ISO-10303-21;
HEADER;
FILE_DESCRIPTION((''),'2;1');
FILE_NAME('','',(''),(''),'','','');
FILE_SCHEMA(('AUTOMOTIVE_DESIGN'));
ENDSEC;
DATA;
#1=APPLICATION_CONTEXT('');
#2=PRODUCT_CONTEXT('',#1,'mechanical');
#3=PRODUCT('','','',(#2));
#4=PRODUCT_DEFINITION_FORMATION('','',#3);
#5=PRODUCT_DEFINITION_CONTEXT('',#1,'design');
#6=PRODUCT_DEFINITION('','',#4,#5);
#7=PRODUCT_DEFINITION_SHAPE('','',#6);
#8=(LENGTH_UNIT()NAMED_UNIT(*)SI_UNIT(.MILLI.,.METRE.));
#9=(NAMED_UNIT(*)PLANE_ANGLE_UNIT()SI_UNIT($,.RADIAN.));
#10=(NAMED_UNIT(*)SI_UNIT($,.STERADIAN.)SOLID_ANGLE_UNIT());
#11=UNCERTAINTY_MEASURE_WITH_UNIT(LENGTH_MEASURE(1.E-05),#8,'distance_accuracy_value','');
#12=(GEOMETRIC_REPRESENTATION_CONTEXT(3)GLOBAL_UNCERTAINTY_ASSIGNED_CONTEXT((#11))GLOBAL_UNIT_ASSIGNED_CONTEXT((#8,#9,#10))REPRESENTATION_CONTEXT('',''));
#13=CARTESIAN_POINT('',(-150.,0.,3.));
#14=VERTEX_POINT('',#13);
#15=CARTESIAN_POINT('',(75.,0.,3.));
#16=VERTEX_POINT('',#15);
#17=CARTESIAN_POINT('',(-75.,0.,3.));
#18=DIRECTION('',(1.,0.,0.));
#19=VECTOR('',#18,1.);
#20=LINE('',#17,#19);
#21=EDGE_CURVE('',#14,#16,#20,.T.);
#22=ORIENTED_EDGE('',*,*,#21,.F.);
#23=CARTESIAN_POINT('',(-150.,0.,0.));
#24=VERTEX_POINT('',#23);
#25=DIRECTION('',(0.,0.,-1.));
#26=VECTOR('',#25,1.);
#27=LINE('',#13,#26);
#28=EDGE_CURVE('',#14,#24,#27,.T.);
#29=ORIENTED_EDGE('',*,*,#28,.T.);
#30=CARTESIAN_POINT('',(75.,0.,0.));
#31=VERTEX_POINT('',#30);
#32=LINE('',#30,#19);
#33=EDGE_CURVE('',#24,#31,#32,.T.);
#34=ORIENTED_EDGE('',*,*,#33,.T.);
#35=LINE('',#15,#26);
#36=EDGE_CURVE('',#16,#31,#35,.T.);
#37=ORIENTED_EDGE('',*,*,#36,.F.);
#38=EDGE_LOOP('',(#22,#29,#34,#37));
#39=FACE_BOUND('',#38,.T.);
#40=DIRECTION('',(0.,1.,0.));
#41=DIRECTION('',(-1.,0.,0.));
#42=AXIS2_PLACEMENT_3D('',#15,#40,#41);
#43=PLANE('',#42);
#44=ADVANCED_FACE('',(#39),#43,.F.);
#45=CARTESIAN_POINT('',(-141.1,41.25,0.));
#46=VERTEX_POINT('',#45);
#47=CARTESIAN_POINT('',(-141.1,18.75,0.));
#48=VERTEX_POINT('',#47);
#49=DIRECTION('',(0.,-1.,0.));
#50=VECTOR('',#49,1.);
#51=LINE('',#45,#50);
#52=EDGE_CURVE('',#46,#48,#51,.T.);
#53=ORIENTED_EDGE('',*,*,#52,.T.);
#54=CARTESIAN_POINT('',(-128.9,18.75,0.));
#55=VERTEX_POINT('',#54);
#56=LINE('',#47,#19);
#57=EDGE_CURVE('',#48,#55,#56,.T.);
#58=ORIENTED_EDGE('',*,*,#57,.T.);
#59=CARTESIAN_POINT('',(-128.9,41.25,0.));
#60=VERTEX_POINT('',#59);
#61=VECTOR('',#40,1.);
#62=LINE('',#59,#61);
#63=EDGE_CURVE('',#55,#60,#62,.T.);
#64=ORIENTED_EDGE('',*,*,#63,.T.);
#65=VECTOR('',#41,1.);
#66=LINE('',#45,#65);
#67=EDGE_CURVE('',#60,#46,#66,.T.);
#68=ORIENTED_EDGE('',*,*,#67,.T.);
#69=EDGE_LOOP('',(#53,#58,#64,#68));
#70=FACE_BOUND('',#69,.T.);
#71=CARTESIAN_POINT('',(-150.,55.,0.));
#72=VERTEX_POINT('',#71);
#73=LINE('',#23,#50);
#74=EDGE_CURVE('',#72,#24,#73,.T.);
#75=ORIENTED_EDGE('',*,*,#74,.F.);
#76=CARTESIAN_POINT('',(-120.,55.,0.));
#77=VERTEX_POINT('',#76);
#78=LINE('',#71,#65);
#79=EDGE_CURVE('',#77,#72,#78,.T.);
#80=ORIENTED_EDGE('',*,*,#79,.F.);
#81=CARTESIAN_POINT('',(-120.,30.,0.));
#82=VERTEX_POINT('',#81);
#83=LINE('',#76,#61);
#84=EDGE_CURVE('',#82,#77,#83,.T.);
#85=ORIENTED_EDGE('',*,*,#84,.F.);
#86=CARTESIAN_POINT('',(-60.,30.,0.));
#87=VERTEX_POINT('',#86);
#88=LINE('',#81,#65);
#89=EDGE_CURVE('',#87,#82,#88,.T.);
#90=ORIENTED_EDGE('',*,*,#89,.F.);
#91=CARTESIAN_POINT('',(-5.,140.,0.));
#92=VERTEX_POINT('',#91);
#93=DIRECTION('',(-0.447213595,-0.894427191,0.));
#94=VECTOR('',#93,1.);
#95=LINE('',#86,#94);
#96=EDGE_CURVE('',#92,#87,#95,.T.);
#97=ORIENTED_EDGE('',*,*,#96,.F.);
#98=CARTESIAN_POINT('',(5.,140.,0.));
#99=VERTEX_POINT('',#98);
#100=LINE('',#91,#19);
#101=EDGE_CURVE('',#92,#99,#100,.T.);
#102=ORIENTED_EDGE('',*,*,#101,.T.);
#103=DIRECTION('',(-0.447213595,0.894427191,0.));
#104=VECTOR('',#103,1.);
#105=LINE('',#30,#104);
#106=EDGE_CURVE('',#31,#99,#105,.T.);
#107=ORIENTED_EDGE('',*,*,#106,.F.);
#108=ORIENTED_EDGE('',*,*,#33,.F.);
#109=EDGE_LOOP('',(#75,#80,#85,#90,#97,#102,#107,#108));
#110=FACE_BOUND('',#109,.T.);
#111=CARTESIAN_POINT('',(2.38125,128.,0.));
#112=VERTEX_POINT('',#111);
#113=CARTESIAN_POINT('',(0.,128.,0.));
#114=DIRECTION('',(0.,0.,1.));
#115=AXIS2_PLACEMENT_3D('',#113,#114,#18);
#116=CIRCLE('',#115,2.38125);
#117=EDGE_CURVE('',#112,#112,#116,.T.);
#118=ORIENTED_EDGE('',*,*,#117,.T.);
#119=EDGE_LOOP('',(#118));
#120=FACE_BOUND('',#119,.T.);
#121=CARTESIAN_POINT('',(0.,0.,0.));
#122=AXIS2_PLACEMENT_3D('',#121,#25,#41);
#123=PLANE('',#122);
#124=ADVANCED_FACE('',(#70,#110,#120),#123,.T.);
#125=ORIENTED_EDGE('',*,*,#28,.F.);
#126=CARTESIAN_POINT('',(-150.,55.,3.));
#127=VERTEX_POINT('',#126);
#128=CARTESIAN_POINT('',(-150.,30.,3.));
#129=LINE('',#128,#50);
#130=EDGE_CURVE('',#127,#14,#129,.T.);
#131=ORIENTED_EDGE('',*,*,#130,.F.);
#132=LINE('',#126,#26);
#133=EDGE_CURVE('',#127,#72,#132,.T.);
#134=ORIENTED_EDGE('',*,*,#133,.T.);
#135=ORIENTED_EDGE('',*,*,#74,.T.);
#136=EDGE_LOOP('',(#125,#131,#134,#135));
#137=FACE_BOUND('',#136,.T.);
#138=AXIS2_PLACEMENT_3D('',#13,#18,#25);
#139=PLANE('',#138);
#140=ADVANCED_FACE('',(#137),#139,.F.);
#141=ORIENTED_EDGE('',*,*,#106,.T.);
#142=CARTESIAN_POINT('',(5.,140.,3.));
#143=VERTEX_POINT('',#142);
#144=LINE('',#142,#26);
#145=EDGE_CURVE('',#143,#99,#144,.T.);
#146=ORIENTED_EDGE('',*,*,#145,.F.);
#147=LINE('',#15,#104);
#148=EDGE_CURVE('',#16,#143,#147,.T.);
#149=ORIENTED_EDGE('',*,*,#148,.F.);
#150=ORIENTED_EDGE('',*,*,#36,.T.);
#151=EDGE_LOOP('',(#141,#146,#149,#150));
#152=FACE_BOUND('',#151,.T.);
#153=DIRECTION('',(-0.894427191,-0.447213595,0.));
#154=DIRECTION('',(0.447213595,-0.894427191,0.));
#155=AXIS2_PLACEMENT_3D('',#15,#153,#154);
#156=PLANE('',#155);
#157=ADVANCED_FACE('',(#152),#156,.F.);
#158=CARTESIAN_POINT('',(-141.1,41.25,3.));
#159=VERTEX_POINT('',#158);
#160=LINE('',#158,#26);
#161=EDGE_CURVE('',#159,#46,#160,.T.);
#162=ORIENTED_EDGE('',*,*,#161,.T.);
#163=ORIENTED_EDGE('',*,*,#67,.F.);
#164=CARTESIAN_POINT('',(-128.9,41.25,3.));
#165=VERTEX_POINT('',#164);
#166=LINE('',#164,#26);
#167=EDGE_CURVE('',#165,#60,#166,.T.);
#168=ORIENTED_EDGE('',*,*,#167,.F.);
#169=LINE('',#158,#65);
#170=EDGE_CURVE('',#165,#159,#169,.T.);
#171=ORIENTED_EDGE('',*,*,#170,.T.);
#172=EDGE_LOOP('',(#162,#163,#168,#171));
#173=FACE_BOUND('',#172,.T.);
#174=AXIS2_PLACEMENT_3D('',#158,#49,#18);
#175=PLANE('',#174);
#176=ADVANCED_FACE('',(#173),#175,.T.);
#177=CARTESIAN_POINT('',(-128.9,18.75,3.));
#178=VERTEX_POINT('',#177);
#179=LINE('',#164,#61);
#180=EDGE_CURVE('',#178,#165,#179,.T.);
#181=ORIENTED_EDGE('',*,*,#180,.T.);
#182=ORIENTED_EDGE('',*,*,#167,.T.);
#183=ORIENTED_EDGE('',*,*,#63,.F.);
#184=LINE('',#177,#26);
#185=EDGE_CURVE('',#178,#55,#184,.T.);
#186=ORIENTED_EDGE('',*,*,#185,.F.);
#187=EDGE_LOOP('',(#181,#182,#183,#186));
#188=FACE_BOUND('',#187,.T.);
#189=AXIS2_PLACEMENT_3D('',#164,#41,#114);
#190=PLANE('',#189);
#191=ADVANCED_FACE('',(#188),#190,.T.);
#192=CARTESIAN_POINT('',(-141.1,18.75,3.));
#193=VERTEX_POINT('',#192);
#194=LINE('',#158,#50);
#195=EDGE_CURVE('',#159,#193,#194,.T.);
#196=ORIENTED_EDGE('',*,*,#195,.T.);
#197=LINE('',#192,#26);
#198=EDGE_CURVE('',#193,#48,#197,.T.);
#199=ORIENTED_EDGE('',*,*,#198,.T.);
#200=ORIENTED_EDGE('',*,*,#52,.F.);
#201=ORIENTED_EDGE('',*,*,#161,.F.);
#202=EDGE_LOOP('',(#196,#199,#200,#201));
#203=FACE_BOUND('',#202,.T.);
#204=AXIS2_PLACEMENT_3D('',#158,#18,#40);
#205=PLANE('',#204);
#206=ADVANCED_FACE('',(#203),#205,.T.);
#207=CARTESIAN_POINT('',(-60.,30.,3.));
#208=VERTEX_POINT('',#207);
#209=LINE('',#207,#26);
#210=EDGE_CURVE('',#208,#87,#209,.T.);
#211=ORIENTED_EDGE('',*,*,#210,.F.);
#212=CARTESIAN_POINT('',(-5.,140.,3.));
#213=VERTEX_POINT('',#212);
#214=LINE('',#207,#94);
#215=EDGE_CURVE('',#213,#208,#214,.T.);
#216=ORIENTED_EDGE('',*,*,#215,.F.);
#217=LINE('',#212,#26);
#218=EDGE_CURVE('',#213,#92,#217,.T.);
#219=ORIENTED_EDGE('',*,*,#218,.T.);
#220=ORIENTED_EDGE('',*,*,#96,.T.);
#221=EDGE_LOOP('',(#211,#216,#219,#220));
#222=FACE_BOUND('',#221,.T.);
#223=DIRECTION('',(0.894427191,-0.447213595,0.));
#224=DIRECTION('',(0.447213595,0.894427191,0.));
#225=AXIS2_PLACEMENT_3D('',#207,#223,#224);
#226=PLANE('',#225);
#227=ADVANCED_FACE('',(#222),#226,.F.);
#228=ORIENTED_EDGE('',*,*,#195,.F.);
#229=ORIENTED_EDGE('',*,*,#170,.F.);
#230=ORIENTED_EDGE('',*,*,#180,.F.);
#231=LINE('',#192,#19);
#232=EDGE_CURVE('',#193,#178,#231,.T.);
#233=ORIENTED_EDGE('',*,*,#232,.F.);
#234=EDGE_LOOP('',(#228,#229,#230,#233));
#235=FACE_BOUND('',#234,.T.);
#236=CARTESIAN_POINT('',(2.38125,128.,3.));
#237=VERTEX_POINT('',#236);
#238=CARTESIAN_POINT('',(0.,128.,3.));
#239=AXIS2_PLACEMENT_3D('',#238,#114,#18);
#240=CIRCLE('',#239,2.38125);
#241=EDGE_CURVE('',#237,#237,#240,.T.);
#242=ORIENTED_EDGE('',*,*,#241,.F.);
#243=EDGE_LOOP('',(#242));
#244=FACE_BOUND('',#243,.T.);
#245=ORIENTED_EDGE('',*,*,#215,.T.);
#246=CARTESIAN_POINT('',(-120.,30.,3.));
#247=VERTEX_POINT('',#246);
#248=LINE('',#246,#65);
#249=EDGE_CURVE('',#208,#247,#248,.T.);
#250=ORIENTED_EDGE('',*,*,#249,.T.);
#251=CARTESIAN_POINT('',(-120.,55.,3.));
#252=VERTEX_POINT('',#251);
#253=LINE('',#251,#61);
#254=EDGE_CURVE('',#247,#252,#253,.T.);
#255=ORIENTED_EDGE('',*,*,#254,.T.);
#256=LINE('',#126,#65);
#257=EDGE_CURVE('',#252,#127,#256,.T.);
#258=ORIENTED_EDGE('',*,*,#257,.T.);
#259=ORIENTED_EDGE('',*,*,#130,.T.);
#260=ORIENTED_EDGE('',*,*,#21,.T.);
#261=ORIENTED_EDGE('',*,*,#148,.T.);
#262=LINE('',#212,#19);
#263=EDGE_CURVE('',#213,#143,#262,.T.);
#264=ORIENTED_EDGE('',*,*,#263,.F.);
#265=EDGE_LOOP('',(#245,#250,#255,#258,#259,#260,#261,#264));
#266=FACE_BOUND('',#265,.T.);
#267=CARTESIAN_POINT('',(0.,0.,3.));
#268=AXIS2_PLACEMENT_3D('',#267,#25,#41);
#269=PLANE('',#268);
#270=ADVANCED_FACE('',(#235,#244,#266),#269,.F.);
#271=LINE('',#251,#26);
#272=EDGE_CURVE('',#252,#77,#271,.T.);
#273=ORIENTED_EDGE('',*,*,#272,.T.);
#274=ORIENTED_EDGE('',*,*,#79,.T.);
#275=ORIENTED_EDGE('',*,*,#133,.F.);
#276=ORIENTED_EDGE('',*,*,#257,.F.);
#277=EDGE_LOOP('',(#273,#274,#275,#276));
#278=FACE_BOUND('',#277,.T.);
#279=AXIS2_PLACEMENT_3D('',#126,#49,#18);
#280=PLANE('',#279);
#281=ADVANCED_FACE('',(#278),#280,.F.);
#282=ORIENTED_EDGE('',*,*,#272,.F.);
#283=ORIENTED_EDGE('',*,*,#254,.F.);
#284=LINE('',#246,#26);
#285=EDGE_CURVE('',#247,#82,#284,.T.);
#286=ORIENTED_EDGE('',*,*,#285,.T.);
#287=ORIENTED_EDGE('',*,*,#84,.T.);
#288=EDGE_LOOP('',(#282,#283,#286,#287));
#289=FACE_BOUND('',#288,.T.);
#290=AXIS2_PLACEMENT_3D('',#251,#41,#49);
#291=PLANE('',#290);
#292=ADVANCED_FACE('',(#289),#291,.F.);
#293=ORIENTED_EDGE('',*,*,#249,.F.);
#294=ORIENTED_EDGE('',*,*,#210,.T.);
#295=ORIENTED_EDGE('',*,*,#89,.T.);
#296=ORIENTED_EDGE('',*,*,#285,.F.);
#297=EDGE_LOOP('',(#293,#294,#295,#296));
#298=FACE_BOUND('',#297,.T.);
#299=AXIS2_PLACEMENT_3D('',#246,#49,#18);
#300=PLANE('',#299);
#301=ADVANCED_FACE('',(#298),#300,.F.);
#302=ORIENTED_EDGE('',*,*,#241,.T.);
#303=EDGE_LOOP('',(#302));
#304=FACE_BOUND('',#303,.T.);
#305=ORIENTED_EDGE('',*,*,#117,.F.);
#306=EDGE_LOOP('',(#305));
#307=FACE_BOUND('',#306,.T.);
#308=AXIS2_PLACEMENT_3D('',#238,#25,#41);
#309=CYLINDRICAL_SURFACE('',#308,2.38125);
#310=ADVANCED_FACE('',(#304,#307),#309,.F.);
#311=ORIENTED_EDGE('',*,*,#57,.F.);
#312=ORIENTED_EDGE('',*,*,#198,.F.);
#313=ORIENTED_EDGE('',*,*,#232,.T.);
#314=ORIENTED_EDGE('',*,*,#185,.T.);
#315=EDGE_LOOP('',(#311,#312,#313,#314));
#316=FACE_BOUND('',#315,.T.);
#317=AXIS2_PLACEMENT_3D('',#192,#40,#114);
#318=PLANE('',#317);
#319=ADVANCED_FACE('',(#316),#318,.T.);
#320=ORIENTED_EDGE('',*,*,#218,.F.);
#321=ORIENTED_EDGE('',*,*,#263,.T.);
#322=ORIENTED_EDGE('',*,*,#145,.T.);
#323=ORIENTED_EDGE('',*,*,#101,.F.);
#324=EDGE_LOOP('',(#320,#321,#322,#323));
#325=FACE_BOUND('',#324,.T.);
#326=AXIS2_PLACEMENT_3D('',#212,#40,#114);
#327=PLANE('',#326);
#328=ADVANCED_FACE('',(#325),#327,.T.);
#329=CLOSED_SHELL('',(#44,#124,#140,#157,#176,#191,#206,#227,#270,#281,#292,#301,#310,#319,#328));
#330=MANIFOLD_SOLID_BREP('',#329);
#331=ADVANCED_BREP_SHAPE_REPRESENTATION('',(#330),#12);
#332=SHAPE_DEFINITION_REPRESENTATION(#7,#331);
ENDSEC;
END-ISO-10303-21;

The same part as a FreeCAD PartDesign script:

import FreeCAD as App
import Part
import Sketcher


def add_polygon(sketch, points):
    """Adds a closed chain of lines whose ends are joined by coincident constraints."""
    first, n = sketch.GeometryCount, len(points)
    for a, b in zip(points, points[1:] + points[:1]):
        sketch.addGeometry(Part.LineSegment(App.Vector(*a, 0), App.Vector(*b, 0)), False)
    for i in range(n):
        sketch.addConstraint(Sketcher.Constraint("Coincident", first + i, 2, first + (i + 1) % n, 1))

doc = App.newDocument("Part")
body = doc.addObject("PartDesign::Body", "Body")

sketch1 = doc.addObject("Sketcher::SketchObject", "Sketch")
body.addObject(sketch1)
sketch1.AttachmentSupport = (doc.XY_Plane, [""])
sketch1.MapMode = "FlatFace"
add_polygon(sketch1, [(-150, 0), (75, 0), (0, 150), (-60, 30), (-120, 30), (-120, 55), (-150, 55)])
add_polygon(sketch1, [(-141, 19), (-141, 41), (-129, 41), (-129, 19)])
sketch1.addConstraint(Sketcher.Constraint("Horizontal", 0))
sketch1.addConstraint(Sketcher.Constraint("Horizontal", 3))
sketch1.addConstraint(Sketcher.Constraint("Vertical", 4))
sketch1.addConstraint(Sketcher.Constraint("Horizontal", 5))
sketch1.addConstraint(Sketcher.Constraint("Vertical", 6))
sketch1.addConstraint(Sketcher.Constraint("Vertical", 7))
sketch1.addConstraint(Sketcher.Constraint("Horizontal", 8))
sketch1.addConstraint(Sketcher.Constraint("Vertical", 9))
sketch1.addConstraint(Sketcher.Constraint("Horizontal", 10))
sketch1.addConstraint(Sketcher.Constraint("PointOnObject", 0, 2, -1))
sketch1.addConstraint(Sketcher.Constraint("PointOnObject", 1, 2, -2))
sketch1.addConstraint(Sketcher.Constraint("DistanceX", 0, 1, 0, 2, 225.0))
sketch1.addConstraint(Sketcher.Constraint("DistanceX", 3, 2, 3, 1, 60.0))
sketch1.addConstraint(Sketcher.Constraint("DistanceX", 5, 2, 5, 1, 30.0))
sketch1.addConstraint(Sketcher.Constraint("DistanceY", 4, 1, 4, 2, 25.0))
sketch1.addConstraint(Sketcher.Constraint("DistanceY", 6, 2, 6, 1, 55.0))
sketch1.addConstraint(Sketcher.Constraint("DistanceX", 8, 1, 8, 2, 12.2))
sketch1.addConstraint(Sketcher.Constraint("DistanceY", 7, 1, 7, 2, 22.5))
sketch1.addConstraint(Sketcher.Constraint("DistanceX", -1, 1, 0, 2, 75.0))
sketch1.addConstraint(Sketcher.Constraint("DistanceY", -1, 1, 1, 2, 150.0))
sketch1.addConstraint(Sketcher.Constraint("DistanceX", 7, 2, -1, 1, 141.1))
sketch1.addConstraint(Sketcher.Constraint("DistanceY", -1, 1, 7, 2, 41.25))
pad1 = doc.addObject("PartDesign::Pad", "Pad")
body.addObject(pad1)
pad1.Profile = sketch1
pad1.Length = 3

sketch2 = doc.addObject("Sketcher::SketchObject", "Sketch001")
body.addObject(sketch2)
sketch2.AttachmentSupport = (doc.XY_Plane, [""])
sketch2.MapMode = "FlatFace"
sketch2.addGeometry(Part.Circle(App.Vector(0, 128, 0), App.Vector(0, 0, 1), 2.4), False)
add_polygon(sketch2, [(5, 140), (0, 150), (-5, 140)])
sketch2.addConstraint(Sketcher.Constraint("Horizontal", 3))
sketch2.addConstraint(Sketcher.Constraint("PointOnObject", 0, 3, -2))
sketch2.addConstraint(Sketcher.Constraint("PointOnObject", 1, 2, -2))
sketch2.addConstraint(Sketcher.Constraint("Equal", 1, 2))
sketch2.addConstraint(Sketcher.Constraint("DistanceX", 3, 1, 3, 2, 10.0))
sketch2.addConstraint(Sketcher.Constraint("DistanceY", -1, 1, 0, 3, 128.0))
sketch2.addConstraint(Sketcher.Constraint("DistanceY", -1, 1, 1, 2, 150.0))
sketch2.addConstraint(Sketcher.Constraint("DistanceY", -1, 1, 2, 2, 140.0))
sketch2.addConstraint(Sketcher.Constraint("Diameter", 0, 4.7625))
pocket1 = doc.addObject("PartDesign::Pocket", "Pocket")
body.addObject(pocket1)
pocket1.Profile = sketch2
pocket1.Type = "ThroughAll"
pocket1.Reversed = True

doc.recompute()
